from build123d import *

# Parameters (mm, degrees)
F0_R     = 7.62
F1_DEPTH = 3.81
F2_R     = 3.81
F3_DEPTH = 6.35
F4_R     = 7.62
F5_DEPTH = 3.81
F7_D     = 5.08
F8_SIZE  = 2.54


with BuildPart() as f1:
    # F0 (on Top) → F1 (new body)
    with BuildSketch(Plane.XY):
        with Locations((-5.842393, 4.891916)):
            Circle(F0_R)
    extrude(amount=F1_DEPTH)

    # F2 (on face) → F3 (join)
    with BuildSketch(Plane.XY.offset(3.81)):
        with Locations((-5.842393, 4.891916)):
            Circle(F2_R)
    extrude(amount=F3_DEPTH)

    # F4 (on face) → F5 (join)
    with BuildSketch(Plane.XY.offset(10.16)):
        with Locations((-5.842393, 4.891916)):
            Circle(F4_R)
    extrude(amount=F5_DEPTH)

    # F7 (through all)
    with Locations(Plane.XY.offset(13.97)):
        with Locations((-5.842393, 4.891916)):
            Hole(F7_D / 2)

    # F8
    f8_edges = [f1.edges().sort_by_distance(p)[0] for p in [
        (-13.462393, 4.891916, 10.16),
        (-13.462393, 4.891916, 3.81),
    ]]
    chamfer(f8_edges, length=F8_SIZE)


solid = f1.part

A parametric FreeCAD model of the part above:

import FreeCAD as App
import Part
import Sketcher

V = App.Vector
Q = App.Units.Quantity


def edges_at(feature, points):
    """Names of the edges that pass closest to the given points."""
    edges = feature.Shape.Edges
    near = lambda p: min(range(len(edges)), key=lambda i: edges[i].distToShape(Part.Vertex(*p))[0])
    return sorted({f"Edge{near(p) + 1}" for p in points})

doc = App.newDocument("Part")
body = doc.addObject("PartDesign::Body", "Body")

sketch1 = body.newObject("Sketcher::SketchObject", "Sketch")
sketch1.AttachmentSupport = (doc.getObject("XY_Plane"), [""])
sketch1.MapMode = "FlatFace"
sketch1.addGeometry(Part.Circle(V(-6, 5, 0), V(0, 0, 1), 8), False)
sketch1.addConstraint([
    Sketcher.Constraint("Diameter", 0, Q("0.6 in")),
    Sketcher.Constraint("DistanceX", 0, 3, -1, 1, Q("5.842393 mm")),
    Sketcher.Constraint("DistanceY", -1, 1, 0, 3, Q("4.891916 mm")),
])
pad1 = body.newObject("PartDesign::Pad", "Pad")
pad1.Profile = sketch1
pad1.Length = Q("0.15 in")

sketch2 = body.newObject("Sketcher::SketchObject", "Sketch001")
sketch2.AttachmentSupport = (doc.getObject("XY_Plane"), [""])
sketch2.MapMode = "FlatFace"
sketch2.AttachmentOffset = App.Placement(V(0, 0, 0.15 * 25.4), App.Rotation())
sketch2.addGeometry(Part.Circle(V(-5.8, 4.9, 0), V(0, 0, 1), 3.8), False)
sketch2.addConstraint([
    Sketcher.Constraint("Diameter", 0, Q("0.3 in")),
    Sketcher.Constraint("DistanceX", 0, 3, -1, 1, Q("5.842393 mm")),
    Sketcher.Constraint("DistanceY", -1, 1, 0, 3, Q("4.891916 mm")),
])
pad2 = body.newObject("PartDesign::Pad", "Pad001")
pad2.Profile = sketch2
pad2.Length = Q("0.25 in")

sketch3 = body.newObject("Sketcher::SketchObject", "Sketch002")
sketch3.AttachmentSupport = (doc.getObject("XY_Plane"), [""])
sketch3.MapMode = "FlatFace"
sketch3.AttachmentOffset = App.Placement(V(0, 0, 0.4 * 25.4), App.Rotation())
sketch3.addGeometry(Part.Circle(V(-6, 5, 0), V(0, 0, 1), 8), False)
sketch3.addConstraint([
    Sketcher.Constraint("Diameter", 0, Q("0.6 in")),
    Sketcher.Constraint("DistanceX", 0, 3, -1, 1, Q("5.842393 mm")),
    Sketcher.Constraint("DistanceY", -1, 1, 0, 3, Q("4.891916 mm")),
])
pad3 = body.newObject("PartDesign::Pad", "Pad002")
pad3.Profile = sketch3
pad3.Length = Q("0.15 in")

sketch4 = body.newObject("Sketcher::SketchObject", "Sketch003")
sketch4.AttachmentSupport = (doc.getObject("XY_Plane"), [""])
sketch4.MapMode = "FlatFace"
sketch4.AttachmentOffset = App.Placement(V(0, 0, 0.55 * 25.4), App.Rotation())
sketch4.addGeometry(Part.Circle(V(-5.8, 4.9, 0), V(0, 0, 1), 2.5), False)
sketch4.addConstraint([
    Sketcher.Constraint("Diameter", 0, Q("0.2 in")),
    Sketcher.Constraint("DistanceX", 0, 3, -1, 1, Q("5.842393 mm")),
    Sketcher.Constraint("DistanceY", -1, 1, 0, 3, Q("4.891916 mm")),
])
doc.recompute()
hole = body.newObject("PartDesign::Hole", "Hole")
hole.Profile = sketch4
hole.ThreadType = "None"
hole.Diameter = Q("0.2 in")
hole.DepthType = "ThroughAll"
doc.recompute()

chamfer = body.newObject("PartDesign::Chamfer", "Chamfer")
chamfer.Base = (hole, edges_at(hole, [(-13.462, 4.892, 10.16), (-13.462, 4.892, 3.81)]))
chamfer.Size = Q("0.1 in")

doc.recompute()
